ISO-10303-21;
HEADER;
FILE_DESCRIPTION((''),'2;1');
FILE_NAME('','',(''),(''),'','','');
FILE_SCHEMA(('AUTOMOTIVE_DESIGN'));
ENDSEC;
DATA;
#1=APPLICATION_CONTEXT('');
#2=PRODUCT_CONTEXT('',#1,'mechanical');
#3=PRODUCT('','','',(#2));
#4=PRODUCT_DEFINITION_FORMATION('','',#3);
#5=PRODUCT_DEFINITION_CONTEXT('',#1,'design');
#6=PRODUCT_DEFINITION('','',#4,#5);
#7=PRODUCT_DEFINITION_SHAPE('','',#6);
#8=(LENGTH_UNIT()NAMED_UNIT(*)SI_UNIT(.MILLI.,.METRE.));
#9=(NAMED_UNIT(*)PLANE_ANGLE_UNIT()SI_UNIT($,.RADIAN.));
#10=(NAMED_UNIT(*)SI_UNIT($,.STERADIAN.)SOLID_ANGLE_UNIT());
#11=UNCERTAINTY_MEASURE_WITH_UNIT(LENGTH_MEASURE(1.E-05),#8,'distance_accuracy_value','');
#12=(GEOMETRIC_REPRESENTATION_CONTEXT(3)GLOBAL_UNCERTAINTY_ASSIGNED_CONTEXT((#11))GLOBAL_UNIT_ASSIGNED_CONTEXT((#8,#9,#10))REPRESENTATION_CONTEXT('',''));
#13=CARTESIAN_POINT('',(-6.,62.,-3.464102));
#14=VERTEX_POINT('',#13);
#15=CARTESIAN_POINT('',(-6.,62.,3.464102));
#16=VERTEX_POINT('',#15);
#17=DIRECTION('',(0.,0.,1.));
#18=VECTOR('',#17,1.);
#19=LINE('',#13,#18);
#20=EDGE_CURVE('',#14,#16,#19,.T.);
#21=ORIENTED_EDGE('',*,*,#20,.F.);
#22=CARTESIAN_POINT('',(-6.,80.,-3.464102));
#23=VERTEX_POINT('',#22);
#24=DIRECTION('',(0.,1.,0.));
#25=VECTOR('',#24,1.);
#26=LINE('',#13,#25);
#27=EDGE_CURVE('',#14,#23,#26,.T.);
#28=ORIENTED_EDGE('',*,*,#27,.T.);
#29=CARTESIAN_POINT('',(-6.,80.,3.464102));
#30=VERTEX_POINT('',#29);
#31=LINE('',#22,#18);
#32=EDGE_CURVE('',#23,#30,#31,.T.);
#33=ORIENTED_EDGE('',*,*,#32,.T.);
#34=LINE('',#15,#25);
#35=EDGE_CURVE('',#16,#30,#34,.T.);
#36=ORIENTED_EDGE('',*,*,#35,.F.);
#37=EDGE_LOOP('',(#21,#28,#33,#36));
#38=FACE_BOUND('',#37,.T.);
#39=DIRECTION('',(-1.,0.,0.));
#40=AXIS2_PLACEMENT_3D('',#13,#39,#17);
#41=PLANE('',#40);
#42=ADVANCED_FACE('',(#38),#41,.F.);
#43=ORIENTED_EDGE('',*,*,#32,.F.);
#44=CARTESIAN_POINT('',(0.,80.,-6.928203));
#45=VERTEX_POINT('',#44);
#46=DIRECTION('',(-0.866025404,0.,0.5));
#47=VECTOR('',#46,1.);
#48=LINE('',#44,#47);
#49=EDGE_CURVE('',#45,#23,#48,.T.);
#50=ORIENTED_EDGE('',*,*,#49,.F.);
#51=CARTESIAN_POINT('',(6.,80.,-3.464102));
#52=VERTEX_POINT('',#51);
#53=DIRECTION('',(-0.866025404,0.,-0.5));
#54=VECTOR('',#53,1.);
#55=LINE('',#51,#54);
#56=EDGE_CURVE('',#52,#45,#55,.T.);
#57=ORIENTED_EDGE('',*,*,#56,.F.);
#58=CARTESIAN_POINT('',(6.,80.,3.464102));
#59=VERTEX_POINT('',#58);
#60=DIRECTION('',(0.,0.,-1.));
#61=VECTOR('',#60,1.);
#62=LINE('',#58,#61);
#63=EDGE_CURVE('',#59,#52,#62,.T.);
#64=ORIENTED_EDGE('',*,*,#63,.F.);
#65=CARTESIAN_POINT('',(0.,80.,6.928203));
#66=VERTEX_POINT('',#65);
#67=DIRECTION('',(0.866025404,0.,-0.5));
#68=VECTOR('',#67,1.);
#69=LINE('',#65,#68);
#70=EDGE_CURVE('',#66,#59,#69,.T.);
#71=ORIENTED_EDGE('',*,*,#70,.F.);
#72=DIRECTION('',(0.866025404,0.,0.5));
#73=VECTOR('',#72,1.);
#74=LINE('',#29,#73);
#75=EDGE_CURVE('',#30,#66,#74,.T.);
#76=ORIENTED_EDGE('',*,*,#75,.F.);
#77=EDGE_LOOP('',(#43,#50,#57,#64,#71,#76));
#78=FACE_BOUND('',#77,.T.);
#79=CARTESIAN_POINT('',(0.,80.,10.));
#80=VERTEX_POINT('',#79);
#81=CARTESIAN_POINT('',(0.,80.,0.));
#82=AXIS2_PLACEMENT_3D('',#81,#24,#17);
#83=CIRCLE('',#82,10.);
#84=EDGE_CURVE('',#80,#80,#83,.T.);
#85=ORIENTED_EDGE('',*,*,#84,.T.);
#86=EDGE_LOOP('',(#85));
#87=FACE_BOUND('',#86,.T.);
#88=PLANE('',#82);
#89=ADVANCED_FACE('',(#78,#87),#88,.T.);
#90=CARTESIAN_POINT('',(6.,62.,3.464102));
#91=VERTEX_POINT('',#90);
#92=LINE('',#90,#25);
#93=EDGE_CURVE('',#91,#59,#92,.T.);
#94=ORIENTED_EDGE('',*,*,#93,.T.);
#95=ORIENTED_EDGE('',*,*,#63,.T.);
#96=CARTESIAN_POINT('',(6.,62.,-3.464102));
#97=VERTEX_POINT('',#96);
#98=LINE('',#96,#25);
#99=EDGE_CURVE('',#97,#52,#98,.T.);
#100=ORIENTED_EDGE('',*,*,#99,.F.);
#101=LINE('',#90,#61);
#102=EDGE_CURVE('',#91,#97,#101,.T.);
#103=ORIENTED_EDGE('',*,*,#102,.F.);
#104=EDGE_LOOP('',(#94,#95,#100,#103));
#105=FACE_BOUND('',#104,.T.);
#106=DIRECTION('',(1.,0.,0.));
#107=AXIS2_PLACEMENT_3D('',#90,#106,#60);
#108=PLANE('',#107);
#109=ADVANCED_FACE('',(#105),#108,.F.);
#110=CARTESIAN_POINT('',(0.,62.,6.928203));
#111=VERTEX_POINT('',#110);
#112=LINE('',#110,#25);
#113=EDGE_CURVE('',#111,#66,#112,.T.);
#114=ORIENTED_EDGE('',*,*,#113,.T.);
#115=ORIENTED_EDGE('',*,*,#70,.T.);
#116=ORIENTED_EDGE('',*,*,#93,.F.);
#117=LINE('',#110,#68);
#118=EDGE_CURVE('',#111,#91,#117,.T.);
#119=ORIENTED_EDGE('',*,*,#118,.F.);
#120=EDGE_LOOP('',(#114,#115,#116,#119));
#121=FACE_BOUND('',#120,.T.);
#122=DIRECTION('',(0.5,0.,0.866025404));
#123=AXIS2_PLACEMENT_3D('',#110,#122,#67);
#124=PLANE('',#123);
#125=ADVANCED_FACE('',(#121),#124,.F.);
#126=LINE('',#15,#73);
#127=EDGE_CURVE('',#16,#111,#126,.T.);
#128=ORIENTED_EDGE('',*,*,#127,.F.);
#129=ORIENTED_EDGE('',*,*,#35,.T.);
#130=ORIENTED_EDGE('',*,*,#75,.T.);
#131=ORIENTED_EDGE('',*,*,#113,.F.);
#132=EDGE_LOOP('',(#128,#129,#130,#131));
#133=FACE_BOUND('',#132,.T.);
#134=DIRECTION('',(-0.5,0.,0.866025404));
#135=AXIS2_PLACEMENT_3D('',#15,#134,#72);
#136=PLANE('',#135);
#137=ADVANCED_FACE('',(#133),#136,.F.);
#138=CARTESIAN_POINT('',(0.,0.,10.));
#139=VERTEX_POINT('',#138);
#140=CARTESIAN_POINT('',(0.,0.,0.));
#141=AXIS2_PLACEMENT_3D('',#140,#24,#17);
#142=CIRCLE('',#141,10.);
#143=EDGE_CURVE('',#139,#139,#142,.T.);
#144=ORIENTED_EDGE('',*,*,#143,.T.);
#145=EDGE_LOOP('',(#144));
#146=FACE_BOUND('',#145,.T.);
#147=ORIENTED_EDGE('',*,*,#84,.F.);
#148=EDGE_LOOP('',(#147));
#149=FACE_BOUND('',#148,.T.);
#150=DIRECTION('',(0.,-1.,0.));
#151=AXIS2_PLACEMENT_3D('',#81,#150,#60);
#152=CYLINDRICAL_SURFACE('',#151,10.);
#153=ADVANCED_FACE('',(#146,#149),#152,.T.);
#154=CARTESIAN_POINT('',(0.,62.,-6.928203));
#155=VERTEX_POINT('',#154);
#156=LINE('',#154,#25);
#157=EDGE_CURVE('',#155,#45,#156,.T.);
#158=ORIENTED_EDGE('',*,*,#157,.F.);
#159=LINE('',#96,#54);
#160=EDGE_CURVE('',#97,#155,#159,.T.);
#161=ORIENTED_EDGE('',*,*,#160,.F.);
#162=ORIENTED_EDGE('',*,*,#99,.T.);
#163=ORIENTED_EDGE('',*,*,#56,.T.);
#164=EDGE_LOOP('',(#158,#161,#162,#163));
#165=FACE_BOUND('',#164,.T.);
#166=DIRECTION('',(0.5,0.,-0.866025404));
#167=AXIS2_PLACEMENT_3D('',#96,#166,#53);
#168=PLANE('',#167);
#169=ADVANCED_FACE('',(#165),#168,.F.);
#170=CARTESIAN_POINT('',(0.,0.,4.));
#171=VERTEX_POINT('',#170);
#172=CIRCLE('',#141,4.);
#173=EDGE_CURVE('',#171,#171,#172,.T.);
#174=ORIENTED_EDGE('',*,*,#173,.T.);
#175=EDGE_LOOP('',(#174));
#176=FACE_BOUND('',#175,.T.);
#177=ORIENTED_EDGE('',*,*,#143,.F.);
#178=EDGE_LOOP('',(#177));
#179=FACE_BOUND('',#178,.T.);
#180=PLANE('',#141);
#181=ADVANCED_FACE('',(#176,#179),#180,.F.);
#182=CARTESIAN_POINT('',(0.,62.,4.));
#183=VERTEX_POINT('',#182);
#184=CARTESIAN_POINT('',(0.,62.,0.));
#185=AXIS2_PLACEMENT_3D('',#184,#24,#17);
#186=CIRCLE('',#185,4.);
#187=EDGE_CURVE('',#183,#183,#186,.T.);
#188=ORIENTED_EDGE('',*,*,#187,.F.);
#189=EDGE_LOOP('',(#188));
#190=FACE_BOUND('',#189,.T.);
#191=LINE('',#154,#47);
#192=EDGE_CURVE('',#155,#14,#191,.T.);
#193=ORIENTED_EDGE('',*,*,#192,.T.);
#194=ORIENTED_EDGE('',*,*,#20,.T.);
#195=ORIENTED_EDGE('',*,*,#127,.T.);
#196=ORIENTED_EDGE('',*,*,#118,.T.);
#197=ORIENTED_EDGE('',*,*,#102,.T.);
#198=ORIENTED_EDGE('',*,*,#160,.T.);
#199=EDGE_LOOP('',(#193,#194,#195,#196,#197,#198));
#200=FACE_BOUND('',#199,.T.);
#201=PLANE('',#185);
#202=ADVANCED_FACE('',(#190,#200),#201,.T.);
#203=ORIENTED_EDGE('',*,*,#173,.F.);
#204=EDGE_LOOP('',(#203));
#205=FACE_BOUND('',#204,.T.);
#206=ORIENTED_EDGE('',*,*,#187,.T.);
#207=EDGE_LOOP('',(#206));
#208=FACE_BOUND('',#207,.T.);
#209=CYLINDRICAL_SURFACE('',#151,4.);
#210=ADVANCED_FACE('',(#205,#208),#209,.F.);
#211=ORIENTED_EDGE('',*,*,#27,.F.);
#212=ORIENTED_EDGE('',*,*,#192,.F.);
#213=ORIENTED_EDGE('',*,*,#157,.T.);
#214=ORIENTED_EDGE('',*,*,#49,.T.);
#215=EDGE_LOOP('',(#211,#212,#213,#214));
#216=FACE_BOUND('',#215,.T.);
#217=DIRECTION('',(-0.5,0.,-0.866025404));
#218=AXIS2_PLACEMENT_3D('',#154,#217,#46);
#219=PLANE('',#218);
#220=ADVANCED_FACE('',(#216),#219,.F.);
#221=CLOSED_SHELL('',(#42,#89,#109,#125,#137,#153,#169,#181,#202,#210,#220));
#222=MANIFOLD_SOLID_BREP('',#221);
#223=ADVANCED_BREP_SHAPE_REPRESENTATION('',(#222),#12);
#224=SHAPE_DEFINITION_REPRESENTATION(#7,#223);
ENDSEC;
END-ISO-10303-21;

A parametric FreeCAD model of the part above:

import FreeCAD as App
import Part
import Sketcher
Q = App.Units.Quantity


def add_polygon(sketch, points):
    """Adds a closed chain of lines whose ends are joined by coincident constraints."""
    first, n = sketch.GeometryCount, len(points)
    for a, b in zip(points, points[1:] + points[:1]):
        sketch.addGeometry(Part.LineSegment(App.Vector(*a, 0), App.Vector(*b, 0)), False)
    for i in range(n):
        sketch.addConstraint(Sketcher.Constraint("Coincident", first + i, 2, first + (i + 1) % n, 1))

doc = App.newDocument("Part")
body = doc.addObject("PartDesign::Body", "Body")

# Sketch on XZ plane
sketch1 = body.newObject("Sketcher::SketchObject", "Sketch")
sketch1.AttachmentSupport = (doc.getObject("XZ_Plane"), [""])
sketch1.MapMode = "FlatFace"
sketch1.addGeometry([
    Part.Circle(App.Vector(0, 0, 0), App.Vector(0, 0, 1), 10),
    Part.Circle(App.Vector(0, 0, 0), App.Vector(0, 0, 1), 4),
], False)
sketch1.addConstraint([
    Sketcher.Constraint("Coincident", 0, 3, -1, 1),
    Sketcher.Constraint("Coincident", 1, 3, -1, 1),
    Sketcher.Constraint("Diameter", 0, 20.0),
    Sketcher.Constraint("Diameter", 1, 8.0),
])
pad1 = body.newObject("PartDesign::Pad", "Pad")
pad1.Profile = sketch1
pad1.Length = 80
pad1.Reversed = True

# Sketch on XZ plane
sketch2 = body.newObject("Sketcher::SketchObject", "Sketch001")
sketch2.AttachmentSupport = (doc.getObject("XZ_Plane"), [""])
sketch2.MapMode = "FlatFace"
sketch2.AttachmentOffset = App.Placement(App.Vector(0, 0, -80), App.Rotation())
add_polygon(sketch2, [(0, 6.928203), (6, 3.464102), (6, -3.464102), (0, -6.928203), (-6, -3.464102), (-6, 3.464102)])  # lines 0-5
sketch2.addConstraint([
    Sketcher.Constraint("Vertical", 1),
    Sketcher.Constraint("Vertical", 4),
    Sketcher.Constraint("Symmetric", 0, 2, 3, 2, -1, 1),
    Sketcher.Constraint("Symmetric", 2, 2, 5, 2, -1, 1),
    Sketcher.Constraint("PointOnObject", 2, 2, -2),
    Sketcher.Constraint("Parallel", 2, 5),
    Sketcher.Constraint("Horizontal", 1, 2, 3, 2),
    Sketcher.Constraint("Angle", 0, Q("-30 deg")),
    Sketcher.Constraint("DistanceX", -1, 1, 0, 2, 6.0),
    Sketcher.Constraint("DistanceY", -1, 1, 0, 2, 3.464102),
])
pocket1 = body.newObject("PartDesign::Pocket", "Pocket")
pocket1.Profile = sketch2
pocket1.Length = 18
pocket1.Reversed = True

doc.recompute()
